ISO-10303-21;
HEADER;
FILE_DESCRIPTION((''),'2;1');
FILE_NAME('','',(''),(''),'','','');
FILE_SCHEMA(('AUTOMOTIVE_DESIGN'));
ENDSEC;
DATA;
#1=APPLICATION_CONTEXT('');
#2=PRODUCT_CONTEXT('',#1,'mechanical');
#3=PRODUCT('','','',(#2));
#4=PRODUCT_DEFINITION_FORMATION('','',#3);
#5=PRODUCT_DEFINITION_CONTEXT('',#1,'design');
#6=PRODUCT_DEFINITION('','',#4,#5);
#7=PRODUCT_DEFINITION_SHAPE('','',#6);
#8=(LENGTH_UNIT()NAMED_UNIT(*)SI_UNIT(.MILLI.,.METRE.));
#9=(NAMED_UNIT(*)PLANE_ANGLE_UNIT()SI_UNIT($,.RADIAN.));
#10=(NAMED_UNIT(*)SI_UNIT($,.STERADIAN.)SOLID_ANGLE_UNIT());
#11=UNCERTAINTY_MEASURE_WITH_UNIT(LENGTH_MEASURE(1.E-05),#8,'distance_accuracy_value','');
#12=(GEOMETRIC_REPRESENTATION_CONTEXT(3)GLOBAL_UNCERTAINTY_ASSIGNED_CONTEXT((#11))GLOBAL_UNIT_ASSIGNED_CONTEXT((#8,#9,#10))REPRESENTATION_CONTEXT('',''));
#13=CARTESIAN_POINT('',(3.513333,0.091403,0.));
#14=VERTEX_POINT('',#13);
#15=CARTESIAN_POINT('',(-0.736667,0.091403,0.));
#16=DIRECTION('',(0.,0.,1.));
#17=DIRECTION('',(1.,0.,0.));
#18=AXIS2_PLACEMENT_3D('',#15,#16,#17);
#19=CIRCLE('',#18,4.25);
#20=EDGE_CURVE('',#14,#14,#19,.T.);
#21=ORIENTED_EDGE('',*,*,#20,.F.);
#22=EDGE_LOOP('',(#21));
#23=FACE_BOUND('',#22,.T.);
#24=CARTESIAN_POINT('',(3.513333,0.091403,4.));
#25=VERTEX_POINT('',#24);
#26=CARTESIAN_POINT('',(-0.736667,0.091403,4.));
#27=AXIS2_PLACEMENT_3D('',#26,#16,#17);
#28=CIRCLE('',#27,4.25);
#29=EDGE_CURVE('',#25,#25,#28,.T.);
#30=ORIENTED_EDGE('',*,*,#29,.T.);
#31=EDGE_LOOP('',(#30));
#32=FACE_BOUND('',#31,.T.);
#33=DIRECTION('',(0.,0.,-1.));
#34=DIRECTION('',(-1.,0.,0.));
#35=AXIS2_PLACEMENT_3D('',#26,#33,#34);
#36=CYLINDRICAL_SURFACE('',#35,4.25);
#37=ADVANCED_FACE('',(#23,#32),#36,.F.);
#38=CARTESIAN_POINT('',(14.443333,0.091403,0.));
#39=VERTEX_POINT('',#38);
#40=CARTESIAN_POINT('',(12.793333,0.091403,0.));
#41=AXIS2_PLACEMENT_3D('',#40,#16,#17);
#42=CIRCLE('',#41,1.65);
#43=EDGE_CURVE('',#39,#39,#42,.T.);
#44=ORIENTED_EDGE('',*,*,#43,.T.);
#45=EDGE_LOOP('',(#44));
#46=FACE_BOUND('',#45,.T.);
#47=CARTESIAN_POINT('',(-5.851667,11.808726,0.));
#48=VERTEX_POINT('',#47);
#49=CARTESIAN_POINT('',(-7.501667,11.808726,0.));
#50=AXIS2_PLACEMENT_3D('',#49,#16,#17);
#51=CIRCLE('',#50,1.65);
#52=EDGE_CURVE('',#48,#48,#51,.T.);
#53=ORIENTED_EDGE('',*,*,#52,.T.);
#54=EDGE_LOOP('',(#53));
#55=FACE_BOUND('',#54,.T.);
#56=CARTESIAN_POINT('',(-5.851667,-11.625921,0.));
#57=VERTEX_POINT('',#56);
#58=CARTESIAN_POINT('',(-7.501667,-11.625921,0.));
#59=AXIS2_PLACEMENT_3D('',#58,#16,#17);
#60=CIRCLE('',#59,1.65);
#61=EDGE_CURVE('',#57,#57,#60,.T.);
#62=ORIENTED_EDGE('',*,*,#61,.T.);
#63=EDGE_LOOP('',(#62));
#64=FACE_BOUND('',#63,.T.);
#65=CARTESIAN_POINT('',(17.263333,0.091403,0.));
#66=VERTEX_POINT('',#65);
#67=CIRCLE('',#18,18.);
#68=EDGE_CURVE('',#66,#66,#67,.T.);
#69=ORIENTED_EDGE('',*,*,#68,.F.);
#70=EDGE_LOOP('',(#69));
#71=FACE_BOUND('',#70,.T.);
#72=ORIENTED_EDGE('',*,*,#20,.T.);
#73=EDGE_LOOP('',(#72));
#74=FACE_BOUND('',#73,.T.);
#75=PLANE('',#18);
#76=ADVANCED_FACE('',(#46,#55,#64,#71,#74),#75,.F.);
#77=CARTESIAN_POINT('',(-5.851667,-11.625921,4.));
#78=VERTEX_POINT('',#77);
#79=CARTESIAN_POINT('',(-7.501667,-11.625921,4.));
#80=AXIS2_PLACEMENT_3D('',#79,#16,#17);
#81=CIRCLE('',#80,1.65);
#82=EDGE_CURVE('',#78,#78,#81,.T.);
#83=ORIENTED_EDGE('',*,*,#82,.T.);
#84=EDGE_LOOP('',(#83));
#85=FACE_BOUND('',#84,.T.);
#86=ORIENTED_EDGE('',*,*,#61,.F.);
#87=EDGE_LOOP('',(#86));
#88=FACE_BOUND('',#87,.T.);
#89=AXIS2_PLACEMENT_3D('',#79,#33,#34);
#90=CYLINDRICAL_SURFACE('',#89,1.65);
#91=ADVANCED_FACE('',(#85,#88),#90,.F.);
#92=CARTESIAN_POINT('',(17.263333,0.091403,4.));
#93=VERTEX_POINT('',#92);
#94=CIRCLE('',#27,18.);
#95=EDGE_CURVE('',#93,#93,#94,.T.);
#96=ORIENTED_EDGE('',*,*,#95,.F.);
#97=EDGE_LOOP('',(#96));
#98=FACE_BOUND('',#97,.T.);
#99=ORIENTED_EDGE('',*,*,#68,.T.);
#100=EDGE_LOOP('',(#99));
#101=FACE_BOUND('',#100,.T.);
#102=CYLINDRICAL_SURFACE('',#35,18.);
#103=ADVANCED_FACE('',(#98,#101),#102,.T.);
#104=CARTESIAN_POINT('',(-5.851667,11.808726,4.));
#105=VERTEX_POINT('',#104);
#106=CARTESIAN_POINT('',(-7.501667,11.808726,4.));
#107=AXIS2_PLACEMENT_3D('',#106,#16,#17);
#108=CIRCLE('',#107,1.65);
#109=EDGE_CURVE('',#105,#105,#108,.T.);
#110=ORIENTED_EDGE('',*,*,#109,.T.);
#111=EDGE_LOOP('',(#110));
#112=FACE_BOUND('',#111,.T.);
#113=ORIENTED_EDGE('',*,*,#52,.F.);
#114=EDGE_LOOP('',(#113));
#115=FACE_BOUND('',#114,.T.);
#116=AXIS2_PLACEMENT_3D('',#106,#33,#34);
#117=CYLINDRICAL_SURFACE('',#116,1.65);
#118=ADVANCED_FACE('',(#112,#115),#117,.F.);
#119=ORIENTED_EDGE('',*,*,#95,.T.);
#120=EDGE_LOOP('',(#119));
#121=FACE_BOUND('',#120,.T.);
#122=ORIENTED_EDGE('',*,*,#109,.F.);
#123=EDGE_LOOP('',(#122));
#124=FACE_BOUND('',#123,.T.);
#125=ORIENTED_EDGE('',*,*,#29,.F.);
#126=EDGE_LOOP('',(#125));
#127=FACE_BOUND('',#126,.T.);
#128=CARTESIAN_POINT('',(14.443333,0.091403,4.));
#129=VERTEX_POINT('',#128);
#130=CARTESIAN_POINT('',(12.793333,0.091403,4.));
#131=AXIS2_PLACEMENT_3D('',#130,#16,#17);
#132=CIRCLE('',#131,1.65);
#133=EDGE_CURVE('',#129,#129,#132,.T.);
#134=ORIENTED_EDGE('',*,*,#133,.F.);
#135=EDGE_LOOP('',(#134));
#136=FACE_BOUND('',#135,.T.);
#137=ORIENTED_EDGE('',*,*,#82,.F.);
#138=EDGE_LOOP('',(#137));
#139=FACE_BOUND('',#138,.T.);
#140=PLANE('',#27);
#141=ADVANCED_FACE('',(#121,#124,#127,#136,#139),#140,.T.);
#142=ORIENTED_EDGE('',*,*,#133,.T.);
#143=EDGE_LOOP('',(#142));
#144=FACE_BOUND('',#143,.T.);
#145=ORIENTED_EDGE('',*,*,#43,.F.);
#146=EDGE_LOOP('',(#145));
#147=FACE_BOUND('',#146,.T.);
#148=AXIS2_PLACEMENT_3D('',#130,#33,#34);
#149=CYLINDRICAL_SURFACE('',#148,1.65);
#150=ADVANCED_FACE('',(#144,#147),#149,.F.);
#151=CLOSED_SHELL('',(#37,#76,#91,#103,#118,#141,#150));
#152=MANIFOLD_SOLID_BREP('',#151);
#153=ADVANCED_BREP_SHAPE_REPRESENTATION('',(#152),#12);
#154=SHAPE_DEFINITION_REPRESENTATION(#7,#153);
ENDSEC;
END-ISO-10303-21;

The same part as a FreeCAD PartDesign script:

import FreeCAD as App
import Part
import Sketcher

V = App.Vector
Q = App.Units.Quantity

doc = App.newDocument("Part")
body = doc.addObject("PartDesign::Body", "Body")

sketch1 = body.newObject("Sketcher::SketchObject", "Sketch")
sketch1.AttachmentSupport = (doc.getObject("XY_Plane"), [""])
sketch1.MapMode = "FlatFace"
sketch1.addGeometry([
    Part.Circle(V(-0.7, 0.1, 0), V(0, 0, 1), 18),
    Part.Circle(V(-7.5, -11.6, 0), V(0, 0, 1), 1.6),
    Part.Circle(V(-0.7, 0.1, 0), V(0, 0, 1), 4.2),
    Part.Circle(V(-7.5, 11.8, 0), V(0, 0, 1), 1.6),
    Part.Circle(V(12.8, 0.1, 0), V(0, 0, 1), 1.6),
], False)
sketch1.addConstraint([
    Sketcher.Constraint("Coincident", 2, 3, 0, 3),
    Sketcher.Constraint("Equal", 1, 3),
    Sketcher.Constraint("Equal", 3, 4),
    Sketcher.Constraint("Horizontal", 2, 3, 4, 3),
    Sketcher.Constraint("Vertical", 1, 3, 3, 3),
    Sketcher.Constraint("Diameter", 0, Q("36 mm")),
    Sketcher.Constraint("Diameter", 1, Q("3.3 mm")),
    Sketcher.Constraint("Diameter", 2, Q("8.5 mm")),
    Sketcher.Constraint("DistanceX", 0, 3, 4, 3, Q("13.53 mm")),
    Sketcher.Constraint("DistanceX", 1, 3, 0, 3, Q("6.765 mm")),
    Sketcher.Constraint("DistanceY", 1, 3, -1, 1, Q("11.625921 mm")),
    Sketcher.Constraint("DistanceX", 0, 3, -1, 1, Q("0.736667 mm")),
    Sketcher.Constraint("DistanceY", -1, 1, 0, 3, Q("0.091403 mm")),
    Sketcher.Constraint("DistanceY", -1, 1, 3, 3, Q("11.808726 mm")),
])
pad1 = body.newObject("PartDesign::Pad", "Pad")
pad1.Profile = sketch1
pad1.Length = 4

doc.recompute()
